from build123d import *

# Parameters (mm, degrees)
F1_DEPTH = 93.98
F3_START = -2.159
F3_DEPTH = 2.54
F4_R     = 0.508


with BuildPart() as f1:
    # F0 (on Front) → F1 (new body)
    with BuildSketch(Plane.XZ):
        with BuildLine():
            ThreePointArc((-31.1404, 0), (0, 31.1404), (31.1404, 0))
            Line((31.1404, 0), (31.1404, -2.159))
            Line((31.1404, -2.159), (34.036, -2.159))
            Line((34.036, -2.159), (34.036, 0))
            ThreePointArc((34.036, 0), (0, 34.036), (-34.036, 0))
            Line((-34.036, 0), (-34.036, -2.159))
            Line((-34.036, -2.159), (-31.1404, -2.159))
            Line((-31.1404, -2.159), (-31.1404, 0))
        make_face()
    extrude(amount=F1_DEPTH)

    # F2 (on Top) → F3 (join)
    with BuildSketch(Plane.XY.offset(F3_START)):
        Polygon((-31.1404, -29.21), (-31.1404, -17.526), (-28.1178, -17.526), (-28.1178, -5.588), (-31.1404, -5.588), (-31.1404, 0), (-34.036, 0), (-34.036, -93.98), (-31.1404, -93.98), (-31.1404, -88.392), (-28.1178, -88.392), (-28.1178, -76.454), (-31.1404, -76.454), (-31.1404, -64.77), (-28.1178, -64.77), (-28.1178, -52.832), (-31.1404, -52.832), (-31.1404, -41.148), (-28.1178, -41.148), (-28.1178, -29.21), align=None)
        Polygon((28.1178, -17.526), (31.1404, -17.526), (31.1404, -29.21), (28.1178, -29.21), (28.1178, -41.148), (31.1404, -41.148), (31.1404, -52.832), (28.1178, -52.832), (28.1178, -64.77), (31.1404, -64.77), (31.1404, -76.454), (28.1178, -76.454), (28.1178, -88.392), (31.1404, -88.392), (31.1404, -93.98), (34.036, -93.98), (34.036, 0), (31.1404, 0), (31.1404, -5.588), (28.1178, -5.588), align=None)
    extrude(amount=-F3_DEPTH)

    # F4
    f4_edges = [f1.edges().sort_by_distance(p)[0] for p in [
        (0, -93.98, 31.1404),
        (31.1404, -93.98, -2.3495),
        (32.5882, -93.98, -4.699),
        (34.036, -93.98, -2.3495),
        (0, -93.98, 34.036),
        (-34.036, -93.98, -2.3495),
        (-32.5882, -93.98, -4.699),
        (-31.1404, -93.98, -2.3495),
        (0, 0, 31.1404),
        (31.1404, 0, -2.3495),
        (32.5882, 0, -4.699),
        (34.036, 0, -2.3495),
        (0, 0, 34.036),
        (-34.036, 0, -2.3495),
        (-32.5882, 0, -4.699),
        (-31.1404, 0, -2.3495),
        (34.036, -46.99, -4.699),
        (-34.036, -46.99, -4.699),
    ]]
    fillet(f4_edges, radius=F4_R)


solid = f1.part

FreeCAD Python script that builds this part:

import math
import FreeCAD as App
import Part
import Sketcher

V = App.Vector
Q = App.Units.Quantity


def edges_at(feature, points):
    """Names of the edges that pass closest to the given points."""
    edges = feature.Shape.Edges
    near = lambda p: min(range(len(edges)), key=lambda i: edges[i].distToShape(Part.Vertex(*p))[0])
    return sorted({f"Edge{near(p) + 1}" for p in points})

doc = App.newDocument("Part")
body = doc.addObject("PartDesign::Body", "Body")

# Sketch on XZ plane
sketch1 = body.newObject("Sketcher::SketchObject", "Sketch")
sketch1.AttachmentSupport = (doc.getObject("XZ_Plane"), [""])
sketch1.MapMode = "FlatFace"
sketch1.addGeometry(Part.ArcOfCircle(Part.Circle(V(0, 0, 0), V(0, 0, 1), 31.1), math.radians(0), math.radians(180)), False)
sketch1.addGeometry(Part.LineSegment(V(31.1, 0, 0), V(31.1, -2.2, 0)), False)
sketch1.addGeometry(Part.LineSegment(V(31.1, -2.2, 0), V(34, -2.2, 0)), False)
sketch1.addGeometry(Part.LineSegment(V(34, -2.2, 0), V(34, 0, 0)), False)
sketch1.addGeometry(Part.ArcOfCircle(Part.Circle(V(0, 0, 0), V(0, 0, 1), 34), math.radians(0), math.radians(180)), False)
sketch1.addGeometry(Part.LineSegment(V(-34, 0, 0), V(-34, -2.2, 0)), False)
sketch1.addGeometry(Part.LineSegment(V(-34, -2.2, 0), V(-31.1, -2.2, 0)), False)
sketch1.addGeometry(Part.LineSegment(V(-31.1, -2.2, 0), V(-31.1, 0, 0)), False)
sketch1.addConstraint(Sketcher.Constraint("Tangent", 0, 1, 1, 1))
sketch1.addConstraint(Sketcher.Constraint("Coincident", 1, 2, 2, 1))
sketch1.addConstraint(Sketcher.Constraint("Coincident", 2, 2, 3, 1))
sketch1.addConstraint(Sketcher.Constraint("Tangent", 3, 2, 4, 1))
sketch1.addConstraint(Sketcher.Constraint("Tangent", 4, 2, 5, 1))
sketch1.addConstraint(Sketcher.Constraint("Coincident", 5, 2, 6, 1))
sketch1.addConstraint(Sketcher.Constraint("Coincident", 6, 2, 7, 1))
sketch1.addConstraint(Sketcher.Constraint("Tangent", 7, 2, 0, 2))
sketch1.addConstraint(Sketcher.Constraint("Vertical", 1))
sketch1.addConstraint(Sketcher.Constraint("Horizontal", 2))
sketch1.addConstraint(Sketcher.Constraint("Vertical", 3))
sketch1.addConstraint(Sketcher.Constraint("Vertical", 5))
sketch1.addConstraint(Sketcher.Constraint("Horizontal", 6))
sketch1.addConstraint(Sketcher.Constraint("Vertical", 7))
sketch1.addConstraint(Sketcher.Constraint("Coincident", 0, 3, -1, 1))
sketch1.addConstraint(Sketcher.Constraint("Coincident", 4, 3, -1, 1))
sketch1.addConstraint(Sketcher.Constraint("Horizontal", 2, 2, 5, 2))
sketch1.addConstraint(Sketcher.Constraint("Radius", 4, Q("1.34 in")))
sketch1.addConstraint(Sketcher.Constraint("Radius", 0, Q("1.226 in")))
sketch1.addConstraint(Sketcher.Constraint("DistanceY", 1, 2, 1, 1, Q("0.085 in")))
pad1 = body.newObject("PartDesign::Pad", "Pad")
pad1.Profile = sketch1
pad1.Length = Q("3.7 in")

# Sketch on XY plane
sketch2 = body.newObject("Sketcher::SketchObject", "Sketch001")
sketch2.AttachmentSupport = (doc.getObject("XY_Plane"), [""])
sketch2.MapMode = "FlatFace"
sketch2.AttachmentOffset = App.Placement(V(0, 0, -0.085 * 25.4), App.Rotation())
sketch2.addGeometry(Part.LineSegment(V(-31.1, -29.2, 0), V(-31.1, -17.5, 0)), False)
sketch2.addGeometry(Part.LineSegment(V(-31.1, -17.5, 0), V(-28.1, -17.5, 0)), False)
sketch2.addGeometry(Part.LineSegment(V(-28.1, -17.5, 0), V(-28.1, -5.6, 0)), False)
sketch2.addGeometry(Part.LineSegment(V(-28.1, -5.6, 0), V(-31.1, -5.6, 0)), False)
sketch2.addGeometry(Part.LineSegment(V(-31.1, -5.6, 0), V(-31.1, 0, 0)), False)
sketch2.addGeometry(Part.LineSegment(V(-31.1, 0, 0), V(-34, 0, 0)), False)
sketch2.addGeometry(Part.LineSegment(V(-34, 0, 0), V(-34, -94, 0)), False)
sketch2.addGeometry(Part.LineSegment(V(-34, -94, 0), V(-31.1, -94, 0)), False)
sketch2.addGeometry(Part.LineSegment(V(-31.1, -94, 0), V(-31.1, -88.4, 0)), False)
sketch2.addGeometry(Part.LineSegment(V(-31.1, -88.4, 0), V(-28.1, -88.4, 0)), False)
sketch2.addGeometry(Part.LineSegment(V(-28.1, -88.4, 0), V(-28.1, -76.5, 0)), False)
sketch2.addGeometry(Part.LineSegment(V(-28.1, -76.5, 0), V(-31.1, -76.5, 0)), False)
sketch2.addGeometry(Part.LineSegment(V(-31.1, -76.5, 0), V(-31.1, -64.8, 0)), False)
sketch2.addGeometry(Part.LineSegment(V(-31.1, -64.8, 0), V(-28.1, -64.8, 0)), False)
sketch2.addGeometry(Part.LineSegment(V(-28.1, -64.8, 0), V(-28.1, -52.8, 0)), False)
sketch2.addGeometry(Part.LineSegment(V(-28.1, -52.8, 0), V(-31.1, -52.8, 0)), False)
sketch2.addGeometry(Part.LineSegment(V(-31.1, -52.8, 0), V(-31.1, -41.1, 0)), False)
sketch2.addGeometry(Part.LineSegment(V(-31.1, -41.1, 0), V(-28.1, -41.1, 0)), False)
sketch2.addGeometry(Part.LineSegment(V(-28.1, -41.1, 0), V(-28.1, -29.2, 0)), False)
sketch2.addGeometry(Part.LineSegment(V(-28.1, -29.2, 0), V(-31.1, -29.2, 0)), False)
sketch2.addGeometry(Part.LineSegment(V(28.1, -17.5, 0), V(31.1, -17.5, 0)), False)
sketch2.addGeometry(Part.LineSegment(V(31.1, -17.5, 0), V(31.1, -29.2, 0)), False)
sketch2.addGeometry(Part.LineSegment(V(31.1, -29.2, 0), V(28.1, -29.2, 0)), False)
sketch2.addGeometry(Part.LineSegment(V(28.1, -29.2, 0), V(28.1, -41.1, 0)), False)
sketch2.addGeometry(Part.LineSegment(V(28.1, -41.1, 0), V(31.1, -41.1, 0)), False)
sketch2.addGeometry(Part.LineSegment(V(31.1, -41.1, 0), V(31.1, -52.8, 0)), False)
sketch2.addGeometry(Part.LineSegment(V(31.1, -52.8, 0), V(28.1, -52.8, 0)), False)
sketch2.addGeometry(Part.LineSegment(V(28.1, -52.8, 0), V(28.1, -64.8, 0)), False)
sketch2.addGeometry(Part.LineSegment(V(28.1, -64.8, 0), V(31.1, -64.8, 0)), False)
sketch2.addGeometry(Part.LineSegment(V(31.1, -64.8, 0), V(31.1, -76.5, 0)), False)
sketch2.addGeometry(Part.LineSegment(V(31.1, -76.5, 0), V(28.1, -76.5, 0)), False)
sketch2.addGeometry(Part.LineSegment(V(28.1, -76.5, 0), V(28.1, -88.4, 0)), False)
sketch2.addGeometry(Part.LineSegment(V(28.1, -88.4, 0), V(31.1, -88.4, 0)), False)
sketch2.addGeometry(Part.LineSegment(V(31.1, -88.4, 0), V(31.1, -94, 0)), False)
sketch2.addGeometry(Part.LineSegment(V(31.1, -94, 0), V(34, -94, 0)), False)
sketch2.addGeometry(Part.LineSegment(V(34, -94, 0), V(34, 0, 0)), False)
sketch2.addGeometry(Part.LineSegment(V(34, 0, 0), V(31.1, 0, 0)), False)
sketch2.addGeometry(Part.LineSegment(V(31.1, 0, 0), V(31.1, -5.6, 0)), False)
sketch2.addGeometry(Part.LineSegment(V(31.1, -5.6, 0), V(28.1, -5.6, 0)), False)
sketch2.addGeometry(Part.LineSegment(V(28.1, -5.6, 0), V(28.1, -17.5, 0)), False)
sketch2.addConstraint(Sketcher.Constraint("Coincident", 0, 2, 1, 1))
sketch2.addConstraint(Sketcher.Constraint("Coincident", 1, 2, 2, 1))
sketch2.addConstraint(Sketcher.Constraint("Coincident", 2, 2, 3, 1))
sketch2.addConstraint(Sketcher.Constraint("Coincident", 3, 2, 4, 1))
sketch2.addConstraint(Sketcher.Constraint("Coincident", 4, 2, 5, 1))
sketch2.addConstraint(Sketcher.Constraint("Coincident", 5, 2, 6, 1))
sketch2.addConstraint(Sketcher.Constraint("Coincident", 6, 2, 7, 1))
sketch2.addConstraint(Sketcher.Constraint("Coincident", 7, 2, 8, 1))
sketch2.addConstraint(Sketcher.Constraint("Coincident", 8, 2, 9, 1))
sketch2.addConstraint(Sketcher.Constraint("Coincident", 9, 2, 10, 1))
sketch2.addConstraint(Sketcher.Constraint("Coincident", 10, 2, 11, 1))
sketch2.addConstraint(Sketcher.Constraint("Coincident", 11, 2, 12, 1))
sketch2.addConstraint(Sketcher.Constraint("Coincident", 12, 2, 13, 1))
sketch2.addConstraint(Sketcher.Constraint("Coincident", 13, 2, 14, 1))
sketch2.addConstraint(Sketcher.Constraint("Coincident", 14, 2, 15, 1))
sketch2.addConstraint(Sketcher.Constraint("Coincident", 15, 2, 16, 1))
sketch2.addConstraint(Sketcher.Constraint("Coincident", 16, 2, 17, 1))
sketch2.addConstraint(Sketcher.Constraint("Coincident", 17, 2, 18, 1))
sketch2.addConstraint(Sketcher.Constraint("Coincident", 18, 2, 19, 1))
sketch2.addConstraint(Sketcher.Constraint("Coincident", 19, 2, 0, 1))
sketch2.addConstraint(Sketcher.Constraint("Coincident", 20, 2, 21, 1))
sketch2.addConstraint(Sketcher.Constraint("Coincident", 21, 2, 22, 1))
sketch2.addConstraint(Sketcher.Constraint("Coincident", 22, 2, 23, 1))
sketch2.addConstraint(Sketcher.Constraint("Coincident", 23, 2, 24, 1))
sketch2.addConstraint(Sketcher.Constraint("Coincident", 24, 2, 25, 1))
sketch2.addConstraint(Sketcher.Constraint("Coincident", 25, 2, 26, 1))
sketch2.addConstraint(Sketcher.Constraint("Coincident", 26, 2, 27, 1))
sketch2.addConstraint(Sketcher.Constraint("Coincident", 27, 2, 28, 1))
sketch2.addConstraint(Sketcher.Constraint("Coincident", 28, 2, 29, 1))
sketch2.addConstraint(Sketcher.Constraint("Coincident", 29, 2, 30, 1))
sketch2.addConstraint(Sketcher.Constraint("Coincident", 30, 2, 31, 1))
sketch2.addConstraint(Sketcher.Constraint("Coincident", 31, 2, 32, 1))
sketch2.addConstraint(Sketcher.Constraint("Coincident", 32, 2, 33, 1))
sketch2.addConstraint(Sketcher.Constraint("Coincident", 33, 2, 34, 1))
sketch2.addConstraint(Sketcher.Constraint("Coincident", 34, 2, 35, 1))
sketch2.addConstraint(Sketcher.Constraint("Coincident", 35, 2, 36, 1))
sketch2.addConstraint(Sketcher.Constraint("Coincident", 36, 2, 37, 1))
sketch2.addConstraint(Sketcher.Constraint("Coincident", 37, 2, 38, 1))
sketch2.addConstraint(Sketcher.Constraint("Coincident", 38, 2, 39, 1))
sketch2.addConstraint(Sketcher.Constraint("Coincident", 39, 2, 20, 1))
sketch2.addConstraint(Sketcher.Constraint("Vertical", 0))
sketch2.addConstraint(Sketcher.Constraint("Horizontal", 1))
sketch2.addConstraint(Sketcher.Constraint("Vertical", 2))
sketch2.addConstraint(Sketcher.Constraint("Horizontal", 3))
sketch2.addConstraint(Sketcher.Constraint("Vertical", 4))
sketch2.addConstraint(Sketcher.Constraint("Horizontal", 5))
sketch2.addConstraint(Sketcher.Constraint("Vertical", 6))
sketch2.addConstraint(Sketcher.Constraint("Horizontal", 7))
sketch2.addConstraint(Sketcher.Constraint("Vertical", 8))
sketch2.addConstraint(Sketcher.Constraint("Horizontal", 9))
sketch2.addConstraint(Sketcher.Constraint("Vertical", 10))
sketch2.addConstraint(Sketcher.Constraint("Horizontal", 11))
sketch2.addConstraint(Sketcher.Constraint("Vertical", 12))
sketch2.addConstraint(Sketcher.Constraint("Horizontal", 13))
sketch2.addConstraint(Sketcher.Constraint("Vertical", 14))
sketch2.addConstraint(Sketcher.Constraint("Horizontal", 15))
sketch2.addConstraint(Sketcher.Constraint("Vertical", 16))
sketch2.addConstraint(Sketcher.Constraint("Horizontal", 17))
sketch2.addConstraint(Sketcher.Constraint("Vertical", 18))
sketch2.addConstraint(Sketcher.Constraint("Horizontal", 19))
sketch2.addConstraint(Sketcher.Constraint("Horizontal", 20))
sketch2.addConstraint(Sketcher.Constraint("Vertical", 21))
sketch2.addConstraint(Sketcher.Constraint("Horizontal", 22))
sketch2.addConstraint(Sketcher.Constraint("Vertical", 23))
sketch2.addConstraint(Sketcher.Constraint("Horizontal", 24))
sketch2.addConstraint(Sketcher.Constraint("Vertical", 25))
sketch2.addConstraint(Sketcher.Constraint("Horizontal", 26))
sketch2.addConstraint(Sketcher.Constraint("Vertical", 27))
sketch2.addConstraint(Sketcher.Constraint("Horizontal", 28))
sketch2.addConstraint(Sketcher.Constraint("Vertical", 29))
sketch2.addConstraint(Sketcher.Constraint("Horizontal", 30))
sketch2.addConstraint(Sketcher.Constraint("Vertical", 31))
sketch2.addConstraint(Sketcher.Constraint("Horizontal", 32))
sketch2.addConstraint(Sketcher.Constraint("Vertical", 33))
sketch2.addConstraint(Sketcher.Constraint("Horizontal", 34))
sketch2.addConstraint(Sketcher.Constraint("Vertical", 35))
sketch2.addConstraint(Sketcher.Constraint("Horizontal", 36))
sketch2.addConstraint(Sketcher.Constraint("Vertical", 37))
sketch2.addConstraint(Sketcher.Constraint("Horizontal", 38))
sketch2.addConstraint(Sketcher.Constraint("Vertical", 39))
sketch2.addConstraint(Sketcher.Constraint("Symmetric", 5, 2, 35, 2, -1, 1))
sketch2.addConstraint(Sketcher.Constraint("Symmetric", 0, 2, 20, 2, -2))
sketch2.addConstraint(Sketcher.Constraint("Symmetric", 18, 2, 22, 2, -2))
sketch2.addConstraint(Sketcher.Constraint("Symmetric", 16, 2, 24, 2, -2))
sketch2.addConstraint(Sketcher.Constraint("Symmetric", 14, 2, 26, 2, -2))
sketch2.addConstraint(Sketcher.Constraint("Symmetric", 12, 2, 28, 2, -2))
sketch2.addConstraint(Sketcher.Constraint("Symmetric", 10, 2, 30, 2, -2))
sketch2.addConstraint(Sketcher.Constraint("Symmetric", 8, 2, 32, 2, -2))
sketch2.addConstraint(Sketcher.Constraint("Symmetric", 4, 2, 36, 2, -2))
sketch2.addConstraint(Sketcher.Constraint("Symmetric", 2, 2, 38, 2, -2))
sketch2.addConstraint(Sketcher.Constraint("Horizontal", 7, 2, 33, 2))
sketch2.addConstraint(Sketcher.Constraint("Vertical", 0, 2, 3, 2))
sketch2.addConstraint(Sketcher.Constraint("Vertical", 4, 2, 7, 2))
sketch2.addConstraint(Sketcher.Constraint("Vertical", 2, 2, 9, 2))
sketch2.addConstraint(Sketcher.Constraint("Vertical", 8, 2, 11, 2))
sketch2.addConstraint(Sketcher.Constraint("Vertical", 10, 2, 13, 2))
sketch2.addConstraint(Sketcher.Constraint("Vertical", 12, 2, 15, 2))
sketch2.addConstraint(Sketcher.Constraint("Vertical", 14, 2, 17, 2))
sketch2.addConstraint(Sketcher.Constraint("Equal", 4, 8))
sketch2.addConstraint(Sketcher.Constraint("Equal", 2, 10))
sketch2.addConstraint(Sketcher.Constraint("Equal", 0, 12))
sketch2.addConstraint(Sketcher.Constraint("Equal", 10, 14))
sketch2.addConstraint(Sketcher.Constraint("Equal", 12, 16))
sketch2.addConstraint(Sketcher.Constraint("Equal", 14, 18))
sketch2.addConstraint(Sketcher.Constraint("DistanceY", 6, 2, 6, 1, Q("3.7 in")))
sketch2.addConstraint(Sketcher.Constraint("DistanceY", 0, 1, 0, 2, Q("0.46 in")))
sketch2.addConstraint(Sketcher.Constraint("DistanceY", 2, 1, 2, 2, Q("0.47 in")))
sketch2.addConstraint(Sketcher.Constraint("DistanceX", 1, 1, 1, 2, Q("0.119 in")))
sketch2.addConstraint(Sketcher.Constraint("DistanceX", 5, 2, 5, 1, Q("0.114 in")))
sketch2.addConstraint(Sketcher.Constraint("DistanceX", 5, 2, -1, 1, Q("1.34 in")))
pad2 = body.newObject("PartDesign::Pad", "Pad001")
pad2.Profile = sketch2
pad2.Length = Q("0.1 in")
pad2.Reversed = True
doc.recompute()

fillet = body.newObject("PartDesign::Fillet", "Fillet")
fillet.Base = (pad2, edges_at(pad2, [
    (0, -93.98, 31.14),
    (31.14, -93.98, -2.349),
    (32.588, -93.98, -4.699),
    (34.036, -93.98, -2.349),
    (0, -93.98, 34.036),
    (-34.036, -93.98, -2.349),
    (-32.588, -93.98, -4.699),
    (-31.14, -93.98, -2.349),
    (0, 0, 31.14),
    (31.14, 0, -2.349),
    (32.588, 0, -4.699),
    (34.036, 0, -2.349),
    (0, 0, 34.036),
    (-34.036, 0, -2.349),
    (-32.588, 0, -4.699),
    (-31.14, 0, -2.349),
    (34.036, -46.99, -4.699),
    (-34.036, -46.99, -4.699),
]))
fillet.Radius = Q("0.02 in")

doc.recompute()
